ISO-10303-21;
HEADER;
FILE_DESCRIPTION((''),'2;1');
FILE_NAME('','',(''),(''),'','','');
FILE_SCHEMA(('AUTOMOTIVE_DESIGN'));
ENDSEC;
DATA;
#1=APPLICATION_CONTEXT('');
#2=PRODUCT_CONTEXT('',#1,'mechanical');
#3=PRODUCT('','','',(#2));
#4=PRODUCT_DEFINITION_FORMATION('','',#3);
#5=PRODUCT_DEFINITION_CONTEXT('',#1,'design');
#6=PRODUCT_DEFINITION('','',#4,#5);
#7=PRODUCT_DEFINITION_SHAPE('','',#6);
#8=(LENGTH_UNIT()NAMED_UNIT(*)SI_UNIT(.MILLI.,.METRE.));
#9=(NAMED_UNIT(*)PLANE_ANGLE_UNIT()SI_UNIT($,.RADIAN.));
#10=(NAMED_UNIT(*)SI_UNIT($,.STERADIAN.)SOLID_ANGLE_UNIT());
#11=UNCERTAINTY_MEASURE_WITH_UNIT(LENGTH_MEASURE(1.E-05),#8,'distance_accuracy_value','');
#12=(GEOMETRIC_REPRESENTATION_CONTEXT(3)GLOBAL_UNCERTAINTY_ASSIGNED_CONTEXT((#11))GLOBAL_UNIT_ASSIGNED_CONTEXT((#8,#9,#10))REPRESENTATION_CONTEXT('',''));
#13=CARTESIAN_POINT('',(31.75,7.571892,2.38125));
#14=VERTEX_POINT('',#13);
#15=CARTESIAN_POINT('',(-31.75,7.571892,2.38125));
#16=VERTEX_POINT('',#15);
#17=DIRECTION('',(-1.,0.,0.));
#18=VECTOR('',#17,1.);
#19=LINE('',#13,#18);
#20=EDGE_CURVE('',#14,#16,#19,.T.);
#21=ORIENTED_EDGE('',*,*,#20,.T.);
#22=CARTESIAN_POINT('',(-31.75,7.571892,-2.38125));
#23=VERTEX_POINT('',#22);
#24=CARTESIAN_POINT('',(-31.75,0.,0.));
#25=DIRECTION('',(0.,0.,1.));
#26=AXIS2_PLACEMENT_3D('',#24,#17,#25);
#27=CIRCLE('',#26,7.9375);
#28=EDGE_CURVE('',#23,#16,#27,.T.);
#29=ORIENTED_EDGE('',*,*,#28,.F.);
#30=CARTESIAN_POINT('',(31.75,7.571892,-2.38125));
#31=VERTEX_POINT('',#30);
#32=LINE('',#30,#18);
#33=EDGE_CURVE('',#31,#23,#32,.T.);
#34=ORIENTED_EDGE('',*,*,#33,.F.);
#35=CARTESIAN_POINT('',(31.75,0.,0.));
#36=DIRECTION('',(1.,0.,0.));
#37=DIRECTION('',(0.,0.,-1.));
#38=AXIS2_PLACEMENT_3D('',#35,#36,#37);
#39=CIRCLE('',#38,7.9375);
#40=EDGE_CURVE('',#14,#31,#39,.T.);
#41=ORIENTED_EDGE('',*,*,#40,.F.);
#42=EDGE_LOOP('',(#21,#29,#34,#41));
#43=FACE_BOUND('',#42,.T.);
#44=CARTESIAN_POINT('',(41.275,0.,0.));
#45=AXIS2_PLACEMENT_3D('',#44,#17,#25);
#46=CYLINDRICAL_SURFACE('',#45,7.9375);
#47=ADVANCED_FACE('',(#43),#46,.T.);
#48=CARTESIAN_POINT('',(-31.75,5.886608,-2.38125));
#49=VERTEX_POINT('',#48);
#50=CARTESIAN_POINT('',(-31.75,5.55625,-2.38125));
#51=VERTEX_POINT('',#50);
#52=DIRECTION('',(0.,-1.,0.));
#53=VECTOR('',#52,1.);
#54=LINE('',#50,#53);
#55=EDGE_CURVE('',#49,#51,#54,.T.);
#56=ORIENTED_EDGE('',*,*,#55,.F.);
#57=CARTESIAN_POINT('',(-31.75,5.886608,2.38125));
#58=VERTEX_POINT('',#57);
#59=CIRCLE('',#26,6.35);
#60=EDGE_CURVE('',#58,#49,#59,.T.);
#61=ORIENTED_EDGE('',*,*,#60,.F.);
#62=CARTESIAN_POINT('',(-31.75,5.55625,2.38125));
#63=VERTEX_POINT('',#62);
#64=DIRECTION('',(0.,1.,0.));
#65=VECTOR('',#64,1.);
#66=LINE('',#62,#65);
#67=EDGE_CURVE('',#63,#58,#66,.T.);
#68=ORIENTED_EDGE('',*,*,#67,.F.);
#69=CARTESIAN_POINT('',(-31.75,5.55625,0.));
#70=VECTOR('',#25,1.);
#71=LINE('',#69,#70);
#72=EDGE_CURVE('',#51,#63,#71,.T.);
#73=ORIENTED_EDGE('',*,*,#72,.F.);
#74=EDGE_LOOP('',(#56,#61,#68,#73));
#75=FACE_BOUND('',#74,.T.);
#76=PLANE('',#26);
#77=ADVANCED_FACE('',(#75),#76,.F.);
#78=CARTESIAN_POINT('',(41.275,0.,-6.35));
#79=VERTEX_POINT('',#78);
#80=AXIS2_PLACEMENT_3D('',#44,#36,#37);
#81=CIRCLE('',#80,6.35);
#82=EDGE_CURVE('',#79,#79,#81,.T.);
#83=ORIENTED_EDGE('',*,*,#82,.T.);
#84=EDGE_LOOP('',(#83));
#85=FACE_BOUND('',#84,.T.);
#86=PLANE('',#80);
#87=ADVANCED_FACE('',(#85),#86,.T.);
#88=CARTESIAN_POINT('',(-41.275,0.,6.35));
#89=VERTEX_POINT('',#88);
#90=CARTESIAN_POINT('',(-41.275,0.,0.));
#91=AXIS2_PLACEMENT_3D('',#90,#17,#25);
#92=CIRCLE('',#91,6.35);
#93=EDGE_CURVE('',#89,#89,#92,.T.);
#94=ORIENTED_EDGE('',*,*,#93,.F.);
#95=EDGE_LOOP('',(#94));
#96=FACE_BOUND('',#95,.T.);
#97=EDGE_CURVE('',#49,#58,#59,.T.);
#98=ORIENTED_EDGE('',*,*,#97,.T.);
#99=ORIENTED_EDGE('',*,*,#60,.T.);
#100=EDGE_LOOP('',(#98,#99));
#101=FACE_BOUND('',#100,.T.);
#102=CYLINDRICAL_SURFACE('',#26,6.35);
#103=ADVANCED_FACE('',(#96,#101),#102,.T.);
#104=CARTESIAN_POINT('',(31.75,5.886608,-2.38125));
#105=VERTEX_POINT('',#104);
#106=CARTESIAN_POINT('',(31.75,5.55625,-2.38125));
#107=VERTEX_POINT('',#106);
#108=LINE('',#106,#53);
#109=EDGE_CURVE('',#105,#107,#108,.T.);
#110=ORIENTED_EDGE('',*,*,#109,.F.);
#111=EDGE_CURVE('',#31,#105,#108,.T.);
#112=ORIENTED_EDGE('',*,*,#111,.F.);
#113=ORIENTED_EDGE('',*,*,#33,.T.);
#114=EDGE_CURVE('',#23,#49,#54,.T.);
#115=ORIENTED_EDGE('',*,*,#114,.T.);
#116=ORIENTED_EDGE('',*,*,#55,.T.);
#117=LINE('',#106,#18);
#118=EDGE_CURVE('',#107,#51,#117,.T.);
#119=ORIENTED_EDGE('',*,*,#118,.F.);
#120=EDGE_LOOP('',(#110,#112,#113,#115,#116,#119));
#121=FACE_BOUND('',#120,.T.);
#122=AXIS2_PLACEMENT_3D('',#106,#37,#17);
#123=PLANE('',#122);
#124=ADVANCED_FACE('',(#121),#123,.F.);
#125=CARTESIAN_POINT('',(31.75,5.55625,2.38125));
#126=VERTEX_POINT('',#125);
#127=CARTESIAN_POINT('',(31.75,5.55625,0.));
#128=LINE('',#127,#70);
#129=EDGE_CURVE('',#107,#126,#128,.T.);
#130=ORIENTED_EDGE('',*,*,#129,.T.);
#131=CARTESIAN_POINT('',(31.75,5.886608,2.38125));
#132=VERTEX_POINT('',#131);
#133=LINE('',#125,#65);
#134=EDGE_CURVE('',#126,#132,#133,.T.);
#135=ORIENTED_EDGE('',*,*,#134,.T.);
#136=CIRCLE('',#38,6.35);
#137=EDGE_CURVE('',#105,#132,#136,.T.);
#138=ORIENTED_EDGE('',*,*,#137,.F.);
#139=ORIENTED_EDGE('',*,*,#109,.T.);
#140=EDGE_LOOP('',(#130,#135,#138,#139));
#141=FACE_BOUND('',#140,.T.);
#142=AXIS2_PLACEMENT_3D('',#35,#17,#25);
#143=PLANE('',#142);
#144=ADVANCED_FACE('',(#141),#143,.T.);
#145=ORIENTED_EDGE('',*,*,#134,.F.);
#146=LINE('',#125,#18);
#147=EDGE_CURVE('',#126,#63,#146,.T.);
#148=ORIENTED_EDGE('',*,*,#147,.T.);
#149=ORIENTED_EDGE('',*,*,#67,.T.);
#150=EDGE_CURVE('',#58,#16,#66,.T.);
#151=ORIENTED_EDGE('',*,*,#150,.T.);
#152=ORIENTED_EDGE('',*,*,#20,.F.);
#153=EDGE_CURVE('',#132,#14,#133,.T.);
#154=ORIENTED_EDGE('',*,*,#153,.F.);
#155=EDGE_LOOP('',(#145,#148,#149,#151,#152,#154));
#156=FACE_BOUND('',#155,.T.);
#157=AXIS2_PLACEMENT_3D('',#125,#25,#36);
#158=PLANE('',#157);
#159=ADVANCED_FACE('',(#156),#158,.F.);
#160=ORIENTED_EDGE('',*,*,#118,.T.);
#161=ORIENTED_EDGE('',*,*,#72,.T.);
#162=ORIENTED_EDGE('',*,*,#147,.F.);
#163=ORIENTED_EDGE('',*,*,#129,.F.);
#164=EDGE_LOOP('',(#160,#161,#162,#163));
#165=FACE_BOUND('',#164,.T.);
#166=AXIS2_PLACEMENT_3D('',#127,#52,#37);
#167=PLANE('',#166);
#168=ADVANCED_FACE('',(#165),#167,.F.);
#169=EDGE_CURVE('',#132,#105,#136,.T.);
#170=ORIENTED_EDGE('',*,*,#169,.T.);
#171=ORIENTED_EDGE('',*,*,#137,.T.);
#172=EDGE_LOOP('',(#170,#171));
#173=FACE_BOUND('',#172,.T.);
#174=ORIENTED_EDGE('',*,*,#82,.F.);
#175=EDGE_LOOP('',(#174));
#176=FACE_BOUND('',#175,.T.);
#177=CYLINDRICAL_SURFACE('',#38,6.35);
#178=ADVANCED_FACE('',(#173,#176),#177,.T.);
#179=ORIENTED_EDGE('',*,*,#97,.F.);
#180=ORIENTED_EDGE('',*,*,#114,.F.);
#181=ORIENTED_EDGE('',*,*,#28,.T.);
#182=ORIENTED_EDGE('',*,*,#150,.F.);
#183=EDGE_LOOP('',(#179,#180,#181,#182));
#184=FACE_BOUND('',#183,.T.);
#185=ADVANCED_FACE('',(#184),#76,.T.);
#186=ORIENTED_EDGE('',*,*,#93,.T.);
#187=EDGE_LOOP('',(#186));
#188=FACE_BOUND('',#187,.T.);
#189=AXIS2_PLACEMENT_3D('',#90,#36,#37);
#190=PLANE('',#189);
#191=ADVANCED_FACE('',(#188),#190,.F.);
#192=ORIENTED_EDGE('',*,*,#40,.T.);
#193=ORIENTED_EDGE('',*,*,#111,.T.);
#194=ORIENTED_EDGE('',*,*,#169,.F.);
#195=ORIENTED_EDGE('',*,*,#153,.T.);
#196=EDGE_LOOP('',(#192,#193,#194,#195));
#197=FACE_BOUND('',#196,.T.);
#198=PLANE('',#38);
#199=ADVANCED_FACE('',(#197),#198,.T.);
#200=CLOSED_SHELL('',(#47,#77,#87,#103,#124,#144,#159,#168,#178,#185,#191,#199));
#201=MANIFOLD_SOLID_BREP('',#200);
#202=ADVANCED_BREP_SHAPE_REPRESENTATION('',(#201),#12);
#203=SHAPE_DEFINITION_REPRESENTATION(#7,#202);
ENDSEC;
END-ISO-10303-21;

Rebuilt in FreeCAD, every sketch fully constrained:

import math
import FreeCAD as App
import Part
import Sketcher
from FreeCAD import Vector
Q = App.Units.Quantity


def add_polygon(sketch, points):
    """Adds a closed chain of lines whose ends are joined by coincident constraints."""
    first, n = sketch.GeometryCount, len(points)
    for a, b in zip(points, points[1:] + points[:1]):
        sketch.addGeometry(Part.LineSegment(App.Vector(*a, 0), App.Vector(*b, 0)), False)
    for i in range(n):
        sketch.addConstraint(Sketcher.Constraint("Coincident", first + i, 2, first + (i + 1) % n, 1))

doc = App.newDocument("Part")
body = doc.addObject("PartDesign::Body", "Body")

sketch1 = doc.addObject("Sketcher::SketchObject", "Sketch")
body.addObject(sketch1)
sketch1.AttachmentSupport = (doc.YZ_Plane, [""])
sketch1.MapMode = "FlatFace"
sketch1.addGeometry(Part.Circle(Vector(0, 0, 0), Vector(0, 0, 1), 8), False)
sketch1.addConstraint([
    Sketcher.Constraint("Coincident", 0, 3, -1, 1),
    Sketcher.Constraint("Diameter", 0, Q("0.625 in")),
])
pad1 = doc.addObject("PartDesign::Pad", "Pad")
body.addObject(pad1)
pad1.Profile = sketch1
pad1.Length = Q("3.25 in")
pad1.Midplane = True

sketch2 = doc.addObject("Sketcher::SketchObject", "Sketch001")
body.addObject(sketch2)
sketch2.AttachmentSupport = (doc.YZ_Plane, [""])
sketch2.MapMode = "FlatFace"
sketch2.AttachmentOffset = App.Placement(Vector(0, 0, 1.625 * 25.4), App.Rotation())
add_polygon(sketch2, [(17, 17), (-17, 17), (-17, -17), (17, -17)])
sketch2.addGeometry(Part.Circle(Vector(0, 0, 0), Vector(0, 0, 1), 6), False)
sketch2.addConstraint([
    Sketcher.Constraint("Horizontal", 0),
    Sketcher.Constraint("Vertical", 1),
    Sketcher.Constraint("Horizontal", 2),
    Sketcher.Constraint("Vertical", 3),
    Sketcher.Constraint("Coincident", 4, 3, -1, 1),
    Sketcher.Constraint("Symmetric", 0, 2, 2, 2, -1, 1),
    Sketcher.Constraint("Equal", 2, 1),
    Sketcher.Constraint("Diameter", 4, Q("0.5 in")),
    Sketcher.Constraint("DistanceX", 0, 2, 0, 1, 34.984),
])
pocket1 = doc.addObject("PartDesign::Pocket", "Pocket")
body.addObject(pocket1)
pocket1.Profile = sketch2
pocket1.Length = Q("0.375 in")

sketch3 = doc.addObject("Sketcher::SketchObject", "Sketch002")
body.addObject(sketch3)
sketch3.AttachmentSupport = (doc.YZ_Plane, [""])
sketch3.MapMode = "FlatFace"
sketch3.AttachmentOffset = App.Placement(Vector(0, 0, -1.625 * 25.4), App.Rotation())
add_polygon(sketch3, [(17, -17), (-17, -17), (-17, 17), (17, 17)])
sketch3.addGeometry(Part.Circle(Vector(0, 0, 0), Vector(0, 0, 1), 6), False)
sketch3.addConstraint([
    Sketcher.Constraint("Horizontal", 0),
    Sketcher.Constraint("Vertical", 1),
    Sketcher.Constraint("Horizontal", 2),
    Sketcher.Constraint("Vertical", 3),
    Sketcher.Constraint("Coincident", 4, 3, -1, 1),
    Sketcher.Constraint("Symmetric", 0, 2, 2, 2, -1, 1),
    Sketcher.Constraint("Equal", 2, 1),
    Sketcher.Constraint("Diameter", 4, Q("0.5 in")),
    Sketcher.Constraint("DistanceX", 0, 2, 0, 1, 34.984),
])
pocket2 = doc.addObject("PartDesign::Pocket", "Pocket001")
body.addObject(pocket2)
pocket2.Profile = sketch3
pocket2.Length = Q("0.375 in")
pocket2.Reversed = True

sketch4 = doc.addObject("Sketcher::SketchObject", "Sketch003")
body.addObject(sketch4)
sketch4.AttachmentSupport = (doc.YZ_Plane, [""])
sketch4.MapMode = "FlatFace"
sketch4.AttachmentOffset = App.Placement(Vector(0, 0, -1.25 * 25.4), App.Rotation())
sketch4.addGeometry([
    Part.LineSegment(Vector(5.6, 2.4, 0), Vector(7.6, 2.4, 0)),
    Part.ArcOfCircle(Part.Circle(Vector(0, 0, 0), Vector(0, 0, 1), 7.9), math.radians(-17), math.radians(17)),
    Part.LineSegment(Vector(7.6, -2.4, 0), Vector(5.6, -2.4, 0)),
    Part.LineSegment(Vector(5.6, -2.4, 0), Vector(5.6, 2.4, 0)),
], False)
sketch4.addConstraint([
    Sketcher.Constraint("Coincident", 0, 2, 1, 2),
    Sketcher.Constraint("Coincident", 1, 1, 2, 1),
    Sketcher.Constraint("Coincident", 2, 2, 3, 1),
    Sketcher.Constraint("Coincident", 3, 2, 0, 1),
    Sketcher.Constraint("Horizontal", 0),
    Sketcher.Constraint("Horizontal", 2),
    Sketcher.Constraint("Vertical", 3),
    Sketcher.Constraint("Coincident", 1, 3, -1, 1),
    Sketcher.Constraint("Vertical", 0, 2, 1, 1),
    Sketcher.Constraint("Radius", 1, Q("0.3125 in")),
    Sketcher.Constraint("DistanceY", 3, 1, 3, 2, Q("0.1875 in")),
    Sketcher.Constraint("DistanceX", -1, 1, 2, 2, Q("0.21875 in")),
])
pocket3 = doc.addObject("PartDesign::Pocket", "Pocket002")
body.addObject(pocket3)
pocket3.Profile = sketch4
pocket3.Length = Q("2.5 in")
pocket3.Reversed = True

doc.recompute()
